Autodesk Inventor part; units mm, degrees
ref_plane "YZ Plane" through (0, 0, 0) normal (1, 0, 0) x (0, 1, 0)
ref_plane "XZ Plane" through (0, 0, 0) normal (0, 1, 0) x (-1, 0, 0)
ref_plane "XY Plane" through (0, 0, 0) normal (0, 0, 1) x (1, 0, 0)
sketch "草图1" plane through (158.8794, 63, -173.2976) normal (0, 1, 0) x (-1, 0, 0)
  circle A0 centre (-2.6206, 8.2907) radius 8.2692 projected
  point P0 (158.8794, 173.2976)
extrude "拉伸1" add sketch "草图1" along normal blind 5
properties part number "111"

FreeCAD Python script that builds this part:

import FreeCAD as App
import Part
import Sketcher

V = App.Vector
Q = App.Units.Quantity

doc = App.newDocument("Part")
body = doc.addObject("PartDesign::Body", "Body")

# Sketch on XZ plane
sketch1 = body.newObject("Sketcher::SketchObject", "Sketch")
sketch1.AttachmentSupport = (doc.getObject("XZ_Plane"), [""])
sketch1.MapMode = "FlatFace"
sketch1.AttachmentOffset = App.Placement(V(0, 0, -63), App.Rotation())
sketch1.addGeometry(Part.Circle(V(161.5, -165.0069, 0), V(0, 0, 1), 8.2692), False)
sketch1.addConstraint(Sketcher.Constraint("Diameter", 0, Q("16.5384 mm")))
sketch1.addConstraint(Sketcher.Constraint("DistanceX", -1, 1, 0, 3, Q("161.5 mm")))
sketch1.addConstraint(Sketcher.Constraint("DistanceY", 0, 3, -1, 1, Q("165.007 mm")))
pad1 = body.newObject("PartDesign::Pad", "Pad")
pad1.Profile = sketch1
pad1.Length = 5
pad1.Reversed = True

doc.recompute()
